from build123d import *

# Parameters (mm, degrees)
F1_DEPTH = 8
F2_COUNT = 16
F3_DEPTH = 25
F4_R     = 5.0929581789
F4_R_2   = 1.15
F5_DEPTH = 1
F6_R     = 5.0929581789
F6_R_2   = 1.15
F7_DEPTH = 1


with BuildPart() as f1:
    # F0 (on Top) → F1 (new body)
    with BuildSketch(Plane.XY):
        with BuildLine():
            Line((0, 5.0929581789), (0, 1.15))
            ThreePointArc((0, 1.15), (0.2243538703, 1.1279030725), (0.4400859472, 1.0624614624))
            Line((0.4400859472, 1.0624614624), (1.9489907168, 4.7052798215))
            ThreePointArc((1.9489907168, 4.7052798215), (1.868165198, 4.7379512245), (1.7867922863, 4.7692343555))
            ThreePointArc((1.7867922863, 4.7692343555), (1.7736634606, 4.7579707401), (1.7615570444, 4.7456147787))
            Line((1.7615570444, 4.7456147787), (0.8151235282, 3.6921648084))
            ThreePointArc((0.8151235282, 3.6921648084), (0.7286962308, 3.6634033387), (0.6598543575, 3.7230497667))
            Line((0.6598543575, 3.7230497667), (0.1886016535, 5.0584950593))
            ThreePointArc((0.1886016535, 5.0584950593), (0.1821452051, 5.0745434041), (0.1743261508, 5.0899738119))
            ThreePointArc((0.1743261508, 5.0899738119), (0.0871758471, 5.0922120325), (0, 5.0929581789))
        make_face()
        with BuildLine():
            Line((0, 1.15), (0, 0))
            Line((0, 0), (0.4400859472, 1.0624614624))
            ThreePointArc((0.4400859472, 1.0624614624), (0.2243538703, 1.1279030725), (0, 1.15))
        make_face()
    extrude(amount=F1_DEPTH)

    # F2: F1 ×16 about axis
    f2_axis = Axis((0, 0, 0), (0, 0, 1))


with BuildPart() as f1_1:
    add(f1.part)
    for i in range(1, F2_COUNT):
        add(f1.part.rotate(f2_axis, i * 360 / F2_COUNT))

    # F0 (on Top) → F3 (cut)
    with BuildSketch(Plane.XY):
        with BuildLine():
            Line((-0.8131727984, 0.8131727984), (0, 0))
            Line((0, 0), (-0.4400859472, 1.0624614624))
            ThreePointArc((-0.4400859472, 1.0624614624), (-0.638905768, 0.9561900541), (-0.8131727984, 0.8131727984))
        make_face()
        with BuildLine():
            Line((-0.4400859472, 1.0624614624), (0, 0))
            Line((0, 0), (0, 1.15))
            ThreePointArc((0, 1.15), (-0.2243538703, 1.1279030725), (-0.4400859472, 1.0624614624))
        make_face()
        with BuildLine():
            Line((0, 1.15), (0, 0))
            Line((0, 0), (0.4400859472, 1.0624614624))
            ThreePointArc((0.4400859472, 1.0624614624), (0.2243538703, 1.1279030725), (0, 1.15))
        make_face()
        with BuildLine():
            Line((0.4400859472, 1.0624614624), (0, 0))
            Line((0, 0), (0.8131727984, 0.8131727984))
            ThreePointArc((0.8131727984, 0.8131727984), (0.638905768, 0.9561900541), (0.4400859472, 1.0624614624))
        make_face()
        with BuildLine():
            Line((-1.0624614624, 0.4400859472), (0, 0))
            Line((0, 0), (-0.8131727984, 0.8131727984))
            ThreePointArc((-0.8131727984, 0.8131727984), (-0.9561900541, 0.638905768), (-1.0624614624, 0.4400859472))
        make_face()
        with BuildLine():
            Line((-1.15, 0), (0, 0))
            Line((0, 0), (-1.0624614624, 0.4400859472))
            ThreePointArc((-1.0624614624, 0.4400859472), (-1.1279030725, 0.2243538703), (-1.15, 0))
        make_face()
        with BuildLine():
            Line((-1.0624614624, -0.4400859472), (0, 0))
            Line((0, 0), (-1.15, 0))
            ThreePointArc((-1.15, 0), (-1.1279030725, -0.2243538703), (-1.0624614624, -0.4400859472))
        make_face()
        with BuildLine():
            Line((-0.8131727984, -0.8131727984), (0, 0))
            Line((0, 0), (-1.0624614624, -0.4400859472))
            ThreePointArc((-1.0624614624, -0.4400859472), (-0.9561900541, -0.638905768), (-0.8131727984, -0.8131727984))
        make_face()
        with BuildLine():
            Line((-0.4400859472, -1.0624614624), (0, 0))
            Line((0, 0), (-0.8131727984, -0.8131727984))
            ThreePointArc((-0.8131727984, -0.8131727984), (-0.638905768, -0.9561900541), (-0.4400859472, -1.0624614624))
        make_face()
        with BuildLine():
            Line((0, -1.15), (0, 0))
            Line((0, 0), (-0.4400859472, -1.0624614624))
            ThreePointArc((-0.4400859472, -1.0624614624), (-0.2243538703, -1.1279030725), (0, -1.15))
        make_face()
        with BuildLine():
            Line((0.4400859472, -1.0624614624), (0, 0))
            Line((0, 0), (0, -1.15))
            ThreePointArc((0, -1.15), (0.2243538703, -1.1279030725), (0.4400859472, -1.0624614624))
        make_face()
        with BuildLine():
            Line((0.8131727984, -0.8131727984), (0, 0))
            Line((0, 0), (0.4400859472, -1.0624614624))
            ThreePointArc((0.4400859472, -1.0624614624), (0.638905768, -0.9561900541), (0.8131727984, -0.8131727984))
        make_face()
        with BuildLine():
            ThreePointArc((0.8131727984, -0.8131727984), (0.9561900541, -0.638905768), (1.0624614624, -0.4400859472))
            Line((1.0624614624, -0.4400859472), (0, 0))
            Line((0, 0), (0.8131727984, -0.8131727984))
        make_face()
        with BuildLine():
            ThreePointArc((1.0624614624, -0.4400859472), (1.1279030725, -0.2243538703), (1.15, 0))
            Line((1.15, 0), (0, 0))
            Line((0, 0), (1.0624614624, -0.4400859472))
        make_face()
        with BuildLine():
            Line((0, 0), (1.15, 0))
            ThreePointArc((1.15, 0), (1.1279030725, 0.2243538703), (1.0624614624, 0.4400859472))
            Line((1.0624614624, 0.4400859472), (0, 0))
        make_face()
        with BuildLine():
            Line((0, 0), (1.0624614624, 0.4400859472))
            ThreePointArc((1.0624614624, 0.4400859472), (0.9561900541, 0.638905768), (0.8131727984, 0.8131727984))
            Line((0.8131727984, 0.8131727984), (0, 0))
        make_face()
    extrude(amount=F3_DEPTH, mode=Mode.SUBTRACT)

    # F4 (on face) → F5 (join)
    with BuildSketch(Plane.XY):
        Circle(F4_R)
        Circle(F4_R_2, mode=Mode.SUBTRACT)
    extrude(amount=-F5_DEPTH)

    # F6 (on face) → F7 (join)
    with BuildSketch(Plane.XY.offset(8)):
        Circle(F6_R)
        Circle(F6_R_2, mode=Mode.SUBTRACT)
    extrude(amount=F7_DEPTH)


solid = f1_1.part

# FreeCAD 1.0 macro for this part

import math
import FreeCAD as App
import Part
import Sketcher
from FreeCAD import Vector
Q = App.Units.Quantity

doc = App.newDocument("Part")
params = doc.addObject("Spreadsheet::Sheet", "Params")
for row, (alias, value) in enumerate([
    ("sketch1_radius", "0.2 mm"),
    ("sketch1_length", "1.15 mm"),
    ("pad1_length", "8 mm"),
    ("sketch2_radius", "1.15 mm"),
    ("pocket1_length", "25 mm"),
    ("sketch3_diameter", "2.3 mm"),
    ("pad2_length", "1 mm"),
    ("sketch4_diameter", "2.3 mm"),
    ("pad3_length", "1 mm"),
], start=1):
    params.set(f"A{row}", alias)
    params.set(f"B{row}", "=" + value)
    params.setAlias(f"B{row}", alias)

body = doc.addObject("PartDesign::Body", "Body")

# Sketch on XY plane
sketch1 = doc.addObject("Sketcher::SketchObject", "Sketch")
body.addObject(sketch1)
sketch1.AttachmentSupport = (doc.XY_Plane, [""])
sketch1.MapMode = "FlatFace"
sketch1.addGeometry([
    Part.LineSegment(Vector(0, 5.093, 0), Vector(0, 0, 0)),  # 0
    Part.LineSegment(Vector(0, 0, 0), Vector(0.44, 1.062, 0)),  # 1
    Part.LineSegment(Vector(0.44, 1.062, 0), Vector(1.949, 4.705, 0)),  # 2
    Part.ArcOfCircle(Part.Circle(Vector(0, 0, 0), Vector(0, 0, 1), 5.093), math.radians(67.5), math.radians(69.46)),  # 3
    Part.ArcOfCircle(Part.Circle(Vector(1.91, 4.612, 0), Vector(0, 0, 1), 0.2), math.radians(128.15), math.radians(138.06)),  # 4
    Part.LineSegment(Vector(1.762, 4.746, 0), Vector(0.815, 3.692, 0)),  # 5
    Part.ArcOfCircle(Part.Circle(Vector(0.747, 3.754, 0), Vector(0, 0, 1), 0.092), math.radians(-161), math.radians(-42)),  # 6
    Part.LineSegment(Vector(0.66, 3.723, 0), Vector(0.189, 5.058, 0)),  # 7
    Part.ArcOfCircle(Part.Circle(Vector(0, 4.992, 0), Vector(0, 0, 1), 0.2), math.radians(19.44), math.radians(29.35)),  # 8
    Part.ArcOfCircle(Part.Circle(Vector(0, 0, 0), Vector(0, 0, 1), 5.093), math.radians(88.04), math.radians(90)),  # 9
], False)
sketch1.addConstraint([
    Sketcher.Constraint("Coincident", 0, 2, 1, 1),
    Sketcher.Constraint("Coincident", 1, 2, 2, 1),
    Sketcher.Constraint("Coincident", 2, 2, 3, 1),
    Sketcher.Constraint("Coincident", 3, 2, 4, 1),
    Sketcher.Constraint("Tangent", 4, 2, 5, 1),
    Sketcher.Constraint("Tangent", 5, 2, 6, 2),
    Sketcher.Constraint("Tangent", 6, 1, 7, 1),
    Sketcher.Constraint("Tangent", 7, 2, 8, 1),
    Sketcher.Constraint("Coincident", 8, 2, 9, 1),
    Sketcher.Constraint("Coincident", 9, 2, 0, 1),
    Sketcher.Constraint("Vertical", 0),
    Sketcher.Constraint("Coincident", 3, 3, -1, 1),
    Sketcher.Constraint("Coincident", 9, 3, -1, 1),
    Sketcher.Constraint("Coincident", 0, 2, -1, 1),
    Sketcher.Constraint("Equal", 4, 8),
    Sketcher.Constraint("Equal", 3, 9),
    Sketcher.Constraint("PointOnObject", 8, 3, -2),
    Sketcher.Constraint("Parallel", 1, 2),
    Sketcher.Constraint("Equal", 5, 7),
    Sketcher.Constraint("Radius", 4, 0.2),
    Sketcher.Constraint("Angle", 1, Q("67.5 deg")),
    Sketcher.Constraint("Distance", 1, 1.15),
    Sketcher.Constraint("Radius", 9, 5.092958),
    Sketcher.Constraint("Radius", 6, 0.092045),
    Sketcher.Constraint("DistanceX", -1, 1, 7, 2, 0.188602),
    Sketcher.Constraint("DistanceY", 6, 3, 2, 2, 0.9516),
    Sketcher.Constraint("DistanceX", 3, 2, 2, 2, 0.162198),
    Sketcher.Constraint("DistanceY", -1, 1, 8, 3, 4.991941),
])
sketch1.setExpression("Constraints[19]", "Params.sketch1_radius")
sketch1.setExpression("Constraints[21]", "Params.sketch1_length")
pad1 = doc.addObject("PartDesign::Pad", "Pad")
body.addObject(pad1)
pad1.Profile = sketch1
pad1.setExpression("Length", "Params.pad1_length")
body2 = doc.addObject("PartDesign::Body", "Body001")
doc.recompute()

body2.BaseFeature = body
doc.recompute()

body3 = doc.addObject("PartDesign::Body", "Body002")
body3.BaseFeature = body
body3.Placement = App.Placement(Vector(0, 0, 0), App.Rotation(Vector(0, 0, 1), 22.5))
boolean = doc.addObject("PartDesign::Boolean", "Boolean")
body2.addObject(boolean)
boolean.Type = "Fuse"
boolean.addObjects([body3])
doc.recompute()

body4 = doc.addObject("PartDesign::Body", "Body003")
body4.BaseFeature = body
body4.Placement = App.Placement(Vector(0, 0, 0), App.Rotation(Vector(0, 0, 1), 45))
boolean2 = doc.addObject("PartDesign::Boolean", "Boolean001")
body2.addObject(boolean2)
boolean2.Type = "Fuse"
boolean2.addObjects([body4])
doc.recompute()

body5 = doc.addObject("PartDesign::Body", "Body004")
body5.BaseFeature = body
body5.Placement = App.Placement(Vector(0, 0, 0), App.Rotation(Vector(0, 0, 1), 67.5))
boolean3 = doc.addObject("PartDesign::Boolean", "Boolean002")
body2.addObject(boolean3)
boolean3.Type = "Fuse"
boolean3.addObjects([body5])
doc.recompute()

body6 = doc.addObject("PartDesign::Body", "Body005")
body6.BaseFeature = body
body6.Placement = App.Placement(Vector(0, 0, 0), App.Rotation(Vector(0, 0, 1), 90))
boolean4 = doc.addObject("PartDesign::Boolean", "Boolean003")
body2.addObject(boolean4)
boolean4.Type = "Fuse"
boolean4.addObjects([body6])
doc.recompute()

body7 = doc.addObject("PartDesign::Body", "Body006")
body7.BaseFeature = body
body7.Placement = App.Placement(Vector(0, 0, 0), App.Rotation(Vector(0, 0, 1), 112.5))
boolean5 = doc.addObject("PartDesign::Boolean", "Boolean004")
body2.addObject(boolean5)
boolean5.Type = "Fuse"
boolean5.addObjects([body7])
doc.recompute()

body8 = doc.addObject("PartDesign::Body", "Body007")
body8.BaseFeature = body
body8.Placement = App.Placement(Vector(0, 0, 0), App.Rotation(Vector(0, 0, 1), 135))
boolean6 = doc.addObject("PartDesign::Boolean", "Boolean005")
body2.addObject(boolean6)
boolean6.Type = "Fuse"
boolean6.addObjects([body8])
doc.recompute()

body9 = doc.addObject("PartDesign::Body", "Body008")
body9.BaseFeature = body
body9.Placement = App.Placement(Vector(0, 0, 0), App.Rotation(Vector(0, 0, 1), 157.5))
boolean7 = doc.addObject("PartDesign::Boolean", "Boolean006")
body2.addObject(boolean7)
boolean7.Type = "Fuse"
boolean7.addObjects([body9])
doc.recompute()

body10 = doc.addObject("PartDesign::Body", "Body009")
body10.BaseFeature = body
body10.Placement = App.Placement(Vector(0, 0, 0), App.Rotation(Vector(0, 0, 1), 180))
boolean8 = doc.addObject("PartDesign::Boolean", "Boolean007")
body2.addObject(boolean8)
boolean8.Type = "Fuse"
boolean8.addObjects([body10])
doc.recompute()

body11 = doc.addObject("PartDesign::Body", "Body010")
body11.BaseFeature = body
body11.Placement = App.Placement(Vector(0, 0, 0), App.Rotation(Vector(0, 0, 1), 202.5))
boolean9 = doc.addObject("PartDesign::Boolean", "Boolean008")
body2.addObject(boolean9)
boolean9.Type = "Fuse"
boolean9.addObjects([body11])
doc.recompute()

body12 = doc.addObject("PartDesign::Body", "Body011")
body12.BaseFeature = body
body12.Placement = App.Placement(Vector(0, 0, 0), App.Rotation(Vector(0, 0, 1), 225))
boolean10 = doc.addObject("PartDesign::Boolean", "Boolean009")
body2.addObject(boolean10)
boolean10.Type = "Fuse"
boolean10.addObjects([body12])
doc.recompute()

body13 = doc.addObject("PartDesign::Body", "Body012")
body13.BaseFeature = body
body13.Placement = App.Placement(Vector(0, 0, 0), App.Rotation(Vector(0, 0, 1), 247.5))
boolean11 = doc.addObject("PartDesign::Boolean", "Boolean010")
body2.addObject(boolean11)
boolean11.Type = "Fuse"
boolean11.addObjects([body13])
doc.recompute()

body14 = doc.addObject("PartDesign::Body", "Body013")
body14.BaseFeature = body
body14.Placement = App.Placement(Vector(0, 0, 0), App.Rotation(Vector(0, 0, 1), 270))
boolean12 = doc.addObject("PartDesign::Boolean", "Boolean011")
body2.addObject(boolean12)
boolean12.Type = "Fuse"
boolean12.addObjects([body14])
doc.recompute()

body15 = doc.addObject("PartDesign::Body", "Body014")
body15.BaseFeature = body
body15.Placement = App.Placement(Vector(0, 0, 0), App.Rotation(Vector(0, 0, 1), 292.5))
boolean13 = doc.addObject("PartDesign::Boolean", "Boolean012")
body2.addObject(boolean13)
boolean13.Type = "Fuse"
boolean13.addObjects([body15])
doc.recompute()

body16 = doc.addObject("PartDesign::Body", "Body015")
body16.BaseFeature = body
body16.Placement = App.Placement(Vector(0, 0, 0), App.Rotation(Vector(0, 0, 1), 315))
boolean14 = doc.addObject("PartDesign::Boolean", "Boolean013")
body2.addObject(boolean14)
boolean14.Type = "Fuse"
boolean14.addObjects([body16])
doc.recompute()

body.Placement = App.Placement(Vector(0, 0, 0), App.Rotation(Vector(0, 0, 1), 337.5))
boolean15 = doc.addObject("PartDesign::Boolean", "Boolean014")
body2.addObject(boolean15)
boolean15.Type = "Fuse"
boolean15.addObjects([body])

# Sketch on XY plane
sketch2 = doc.addObject("Sketcher::SketchObject", "Sketch001")
body2.addObject(sketch2)
sketch2.AttachmentSupport = (doc.getObject("XY_Plane001"), [""])
sketch2.MapMode = "FlatFace"
sketch2.addGeometry([
    Part.ArcOfCircle(Part.Circle(Vector(0, 0, 0), Vector(0, 0, 1), 1.15), math.radians(45), math.radians(67)),  # 0
    Part.ArcOfCircle(Part.Circle(Vector(0, 0, 0), Vector(0, 0, 1), 1.15), math.radians(67), math.radians(90)),  # 1
    Part.ArcOfCircle(Part.Circle(Vector(0, 0, 0), Vector(0, 0, 1), 1.15), math.radians(90), math.radians(113)),  # 2
    Part.ArcOfCircle(Part.Circle(Vector(0, 0, 0), Vector(0, 0, 1), 1.15), math.radians(113), math.radians(135)),  # 3
    Part.ArcOfCircle(Part.Circle(Vector(0, 0, 0), Vector(0, 0, 1), 1.15), math.radians(135), math.radians(157)),  # 4
    Part.ArcOfCircle(Part.Circle(Vector(0, 0, 0), Vector(0, 0, 1), 1.15), math.radians(157), math.radians(180)),  # 5
    Part.ArcOfCircle(Part.Circle(Vector(0, 0, 0), Vector(0, 0, 1), 1.15), math.radians(180), math.radians(203)),  # 6
    Part.ArcOfCircle(Part.Circle(Vector(0, 0, 0), Vector(0, 0, 1), 1.15), math.radians(-157), math.radians(-135)),  # 7
    Part.ArcOfCircle(Part.Circle(Vector(0, 0, 0), Vector(0, 0, 1), 1.15), math.radians(-135), math.radians(-113)),  # 8
    Part.ArcOfCircle(Part.Circle(Vector(0, 0, 0), Vector(0, 0, 1), 1.15), math.radians(-113), math.radians(-90)),  # 9
    Part.ArcOfCircle(Part.Circle(Vector(0, 0, 0), Vector(0, 0, 1), 1.15), math.radians(-90), math.radians(-67)),  # 10
    Part.ArcOfCircle(Part.Circle(Vector(0, 0, 0), Vector(0, 0, 1), 1.15), math.radians(-67), math.radians(-45)),  # 11
    Part.ArcOfCircle(Part.Circle(Vector(0, 0, 0), Vector(0, 0, 1), 1.15), math.radians(-45), math.radians(-23)),  # 12
    Part.ArcOfCircle(Part.Circle(Vector(0, 0, 0), Vector(0, 0, 1), 1.15), math.radians(-23), math.radians(0)),  # 13
    Part.ArcOfCircle(Part.Circle(Vector(0, 0, 0), Vector(0, 0, 1), 1.15), math.radians(0), math.radians(23)),  # 14
    Part.ArcOfCircle(Part.Circle(Vector(0, 0, 0), Vector(0, 0, 1), 1.15), math.radians(23), math.radians(45)),  # 15
], False)
sketch2.addConstraint([
    Sketcher.Constraint("Tangent", 0, 2, 1, 1),
    Sketcher.Constraint("Tangent", 1, 2, 2, 1),
    Sketcher.Constraint("Tangent", 2, 2, 3, 1),
    Sketcher.Constraint("Tangent", 3, 2, 4, 1),
    Sketcher.Constraint("Tangent", 4, 2, 5, 1),
    Sketcher.Constraint("Tangent", 5, 2, 6, 1),
    Sketcher.Constraint("Tangent", 6, 2, 7, 1),
    Sketcher.Constraint("Tangent", 7, 2, 8, 1),
    Sketcher.Constraint("Tangent", 8, 2, 9, 1),
    Sketcher.Constraint("Tangent", 9, 2, 10, 1),
    Sketcher.Constraint("Tangent", 10, 2, 11, 1),
    Sketcher.Constraint("Tangent", 11, 2, 12, 1),
    Sketcher.Constraint("Tangent", 12, 2, 13, 1),
    Sketcher.Constraint("Tangent", 13, 2, 14, 1),
    Sketcher.Constraint("Tangent", 14, 2, 15, 1),
    Sketcher.Constraint("Tangent", 15, 2, 0, 1),
    Sketcher.Constraint("Coincident", 0, 3, -1, 1),
    Sketcher.Constraint("Coincident", 2, 3, -1, 1),
    Sketcher.Constraint("Coincident", 4, 3, -1, 1),
    Sketcher.Constraint("Coincident", 6, 3, -1, 1),
    Sketcher.Constraint("Coincident", 8, 3, -1, 1),
    Sketcher.Constraint("Coincident", 10, 3, -1, 1),
    Sketcher.Constraint("Coincident", 12, 3, -1, 1),
    Sketcher.Constraint("Equal", 12, 13),
    Sketcher.Constraint("PointOnObject", 1, 2, -2),
    Sketcher.Constraint("PointOnObject", 5, 2, -1),
    Sketcher.Constraint("PointOnObject", 9, 2, -2),
    Sketcher.Constraint("PointOnObject", 13, 2, -1),
    Sketcher.Constraint("Horizontal", 0, 2, 2, 2),
    Sketcher.Constraint("Horizontal", 8, 2, 10, 2),
    Sketcher.Constraint("Horizontal", 7, 2, 11, 2),
    Sketcher.Constraint("Horizontal", 6, 2, 12, 2),
    Sketcher.Constraint("Horizontal", 4, 2, 14, 2),
    Sketcher.Constraint("Horizontal", 3, 2, 15, 2),
    Sketcher.Constraint("Vertical", 4, 2, 6, 2),
    Sketcher.Constraint("Vertical", 3, 2, 7, 2),
    Sketcher.Constraint("Vertical", 2, 2, 8, 2),
    Sketcher.Constraint("Radius", 0, 1.15),
    Sketcher.Constraint("DistanceY", -1, 1, 0, 2, 1.062461),
    Sketcher.Constraint("DistanceX", 4, 2, -1, 1, 1.062461),
    Sketcher.Constraint("DistanceY", 3, 2, 2, 2, 0.249289),
])
sketch2.setExpression("Constraints[37]", "Params.sketch2_radius")
pocket1 = doc.addObject("PartDesign::Pocket", "Pocket")
body2.addObject(pocket1)
pocket1.Profile = sketch2
pocket1.setExpression("Length", "Params.pocket1_length")
pocket1.Reversed = True

# Sketch on XY plane
sketch3 = doc.addObject("Sketcher::SketchObject", "Sketch002")
body2.addObject(sketch3)
sketch3.AttachmentSupport = (doc.getObject("XY_Plane001"), [""])
sketch3.MapMode = "FlatFace"
sketch3.addGeometry([
    Part.Circle(Vector(0, 0, 0), Vector(0, 0, 1), 5.1),
    Part.Circle(Vector(0, 0, 0), Vector(0, 0, 1), 1.1),
], False)
sketch3.addConstraint([
    Sketcher.Constraint("Coincident", 0, 3, -1, 1),
    Sketcher.Constraint("Coincident", 1, 3, -1, 1),
    Sketcher.Constraint("Diameter", 1, 2.3),
    Sketcher.Constraint("Diameter", 0, 10.185916),
])
sketch3.setExpression("Constraints[2]", "Params.sketch3_diameter")
pad2 = doc.addObject("PartDesign::Pad", "Pad001")
body2.addObject(pad2)
pad2.Profile = sketch3
pad2.setExpression("Length", "Params.pad2_length")
pad2.Reversed = True

# Sketch on XY plane
sketch4 = doc.addObject("Sketcher::SketchObject", "Sketch003")
body2.addObject(sketch4)
sketch4.AttachmentSupport = (doc.getObject("XY_Plane001"), [""])
sketch4.MapMode = "FlatFace"
sketch4.AttachmentOffset = App.Placement(Vector(0, 0, 8), App.Rotation())
sketch4.addGeometry([
    Part.Circle(Vector(0, 0, 0), Vector(0, 0, 1), 5.1),
    Part.Circle(Vector(0, 0, 0), Vector(0, 0, 1), 1.1),
], False)
sketch4.addConstraint([
    Sketcher.Constraint("Coincident", 0, 3, -1, 1),
    Sketcher.Constraint("Coincident", 1, 3, -1, 1),
    Sketcher.Constraint("Diameter", 1, 2.3),
    Sketcher.Constraint("Diameter", 0, 10.185916),
])
sketch4.setExpression("Constraints[2]", "Params.sketch4_diameter")
pad3 = doc.addObject("PartDesign::Pad", "Pad002")
body2.addObject(pad3)
pad3.Profile = sketch4
pad3.setExpression("Length", "Params.pad3_length")

doc.recompute()
